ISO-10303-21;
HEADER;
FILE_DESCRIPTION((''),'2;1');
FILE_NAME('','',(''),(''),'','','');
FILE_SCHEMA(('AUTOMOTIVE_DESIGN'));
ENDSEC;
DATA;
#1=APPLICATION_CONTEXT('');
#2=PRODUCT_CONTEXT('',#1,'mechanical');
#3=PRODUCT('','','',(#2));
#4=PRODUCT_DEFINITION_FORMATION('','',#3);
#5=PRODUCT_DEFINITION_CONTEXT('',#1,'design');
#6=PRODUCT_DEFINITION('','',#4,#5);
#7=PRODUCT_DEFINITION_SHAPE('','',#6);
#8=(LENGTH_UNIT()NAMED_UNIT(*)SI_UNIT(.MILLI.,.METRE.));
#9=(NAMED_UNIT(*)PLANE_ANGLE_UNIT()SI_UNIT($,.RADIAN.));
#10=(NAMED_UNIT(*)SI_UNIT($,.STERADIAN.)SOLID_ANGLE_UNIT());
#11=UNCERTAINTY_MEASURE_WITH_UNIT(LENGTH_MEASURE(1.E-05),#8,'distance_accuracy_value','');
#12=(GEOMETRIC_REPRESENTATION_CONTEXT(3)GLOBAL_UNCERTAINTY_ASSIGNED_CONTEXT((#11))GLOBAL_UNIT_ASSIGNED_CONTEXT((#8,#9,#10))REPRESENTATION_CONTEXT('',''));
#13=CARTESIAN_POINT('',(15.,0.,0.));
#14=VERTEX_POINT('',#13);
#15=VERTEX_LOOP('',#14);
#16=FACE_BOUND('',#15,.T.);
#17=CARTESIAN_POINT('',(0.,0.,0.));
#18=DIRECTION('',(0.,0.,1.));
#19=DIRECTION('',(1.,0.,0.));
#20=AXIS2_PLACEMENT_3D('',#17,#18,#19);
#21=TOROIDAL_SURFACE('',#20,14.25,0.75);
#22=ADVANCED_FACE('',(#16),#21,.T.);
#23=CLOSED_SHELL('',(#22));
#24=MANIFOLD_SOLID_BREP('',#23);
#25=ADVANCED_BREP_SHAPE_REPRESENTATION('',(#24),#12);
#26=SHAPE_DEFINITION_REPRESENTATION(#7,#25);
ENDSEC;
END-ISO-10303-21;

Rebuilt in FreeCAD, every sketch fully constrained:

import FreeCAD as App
import Part
import Sketcher

doc = App.newDocument("Part")
body = doc.addObject("PartDesign::Body", "Body")

# Sketch on YZ plane
sketch1 = body.newObject("Sketcher::SketchObject", "Sketch")
sketch1.AttachmentSupport = (doc.getObject("YZ_Plane"), [""])
sketch1.MapMode = "FlatFace"
sketch1.addGeometry(Part.Circle(App.Vector(14.2, 0, 0), App.Vector(0, 0, 1), 0.8), False)
sketch1.addConstraint([
    Sketcher.Constraint("PointOnObject", 0, 3, -1),
    Sketcher.Constraint("Diameter", 0, 1.5),
    Sketcher.Constraint("DistanceX", -1, 1, 0, 3, 14.25),
])
revolution = body.newObject("PartDesign::Revolution", "Revolution")
revolution.Profile = sketch1
revolution.ReferenceAxis = (sketch1, ["V_Axis"])
revolution.Angle = 360

doc.recompute()
